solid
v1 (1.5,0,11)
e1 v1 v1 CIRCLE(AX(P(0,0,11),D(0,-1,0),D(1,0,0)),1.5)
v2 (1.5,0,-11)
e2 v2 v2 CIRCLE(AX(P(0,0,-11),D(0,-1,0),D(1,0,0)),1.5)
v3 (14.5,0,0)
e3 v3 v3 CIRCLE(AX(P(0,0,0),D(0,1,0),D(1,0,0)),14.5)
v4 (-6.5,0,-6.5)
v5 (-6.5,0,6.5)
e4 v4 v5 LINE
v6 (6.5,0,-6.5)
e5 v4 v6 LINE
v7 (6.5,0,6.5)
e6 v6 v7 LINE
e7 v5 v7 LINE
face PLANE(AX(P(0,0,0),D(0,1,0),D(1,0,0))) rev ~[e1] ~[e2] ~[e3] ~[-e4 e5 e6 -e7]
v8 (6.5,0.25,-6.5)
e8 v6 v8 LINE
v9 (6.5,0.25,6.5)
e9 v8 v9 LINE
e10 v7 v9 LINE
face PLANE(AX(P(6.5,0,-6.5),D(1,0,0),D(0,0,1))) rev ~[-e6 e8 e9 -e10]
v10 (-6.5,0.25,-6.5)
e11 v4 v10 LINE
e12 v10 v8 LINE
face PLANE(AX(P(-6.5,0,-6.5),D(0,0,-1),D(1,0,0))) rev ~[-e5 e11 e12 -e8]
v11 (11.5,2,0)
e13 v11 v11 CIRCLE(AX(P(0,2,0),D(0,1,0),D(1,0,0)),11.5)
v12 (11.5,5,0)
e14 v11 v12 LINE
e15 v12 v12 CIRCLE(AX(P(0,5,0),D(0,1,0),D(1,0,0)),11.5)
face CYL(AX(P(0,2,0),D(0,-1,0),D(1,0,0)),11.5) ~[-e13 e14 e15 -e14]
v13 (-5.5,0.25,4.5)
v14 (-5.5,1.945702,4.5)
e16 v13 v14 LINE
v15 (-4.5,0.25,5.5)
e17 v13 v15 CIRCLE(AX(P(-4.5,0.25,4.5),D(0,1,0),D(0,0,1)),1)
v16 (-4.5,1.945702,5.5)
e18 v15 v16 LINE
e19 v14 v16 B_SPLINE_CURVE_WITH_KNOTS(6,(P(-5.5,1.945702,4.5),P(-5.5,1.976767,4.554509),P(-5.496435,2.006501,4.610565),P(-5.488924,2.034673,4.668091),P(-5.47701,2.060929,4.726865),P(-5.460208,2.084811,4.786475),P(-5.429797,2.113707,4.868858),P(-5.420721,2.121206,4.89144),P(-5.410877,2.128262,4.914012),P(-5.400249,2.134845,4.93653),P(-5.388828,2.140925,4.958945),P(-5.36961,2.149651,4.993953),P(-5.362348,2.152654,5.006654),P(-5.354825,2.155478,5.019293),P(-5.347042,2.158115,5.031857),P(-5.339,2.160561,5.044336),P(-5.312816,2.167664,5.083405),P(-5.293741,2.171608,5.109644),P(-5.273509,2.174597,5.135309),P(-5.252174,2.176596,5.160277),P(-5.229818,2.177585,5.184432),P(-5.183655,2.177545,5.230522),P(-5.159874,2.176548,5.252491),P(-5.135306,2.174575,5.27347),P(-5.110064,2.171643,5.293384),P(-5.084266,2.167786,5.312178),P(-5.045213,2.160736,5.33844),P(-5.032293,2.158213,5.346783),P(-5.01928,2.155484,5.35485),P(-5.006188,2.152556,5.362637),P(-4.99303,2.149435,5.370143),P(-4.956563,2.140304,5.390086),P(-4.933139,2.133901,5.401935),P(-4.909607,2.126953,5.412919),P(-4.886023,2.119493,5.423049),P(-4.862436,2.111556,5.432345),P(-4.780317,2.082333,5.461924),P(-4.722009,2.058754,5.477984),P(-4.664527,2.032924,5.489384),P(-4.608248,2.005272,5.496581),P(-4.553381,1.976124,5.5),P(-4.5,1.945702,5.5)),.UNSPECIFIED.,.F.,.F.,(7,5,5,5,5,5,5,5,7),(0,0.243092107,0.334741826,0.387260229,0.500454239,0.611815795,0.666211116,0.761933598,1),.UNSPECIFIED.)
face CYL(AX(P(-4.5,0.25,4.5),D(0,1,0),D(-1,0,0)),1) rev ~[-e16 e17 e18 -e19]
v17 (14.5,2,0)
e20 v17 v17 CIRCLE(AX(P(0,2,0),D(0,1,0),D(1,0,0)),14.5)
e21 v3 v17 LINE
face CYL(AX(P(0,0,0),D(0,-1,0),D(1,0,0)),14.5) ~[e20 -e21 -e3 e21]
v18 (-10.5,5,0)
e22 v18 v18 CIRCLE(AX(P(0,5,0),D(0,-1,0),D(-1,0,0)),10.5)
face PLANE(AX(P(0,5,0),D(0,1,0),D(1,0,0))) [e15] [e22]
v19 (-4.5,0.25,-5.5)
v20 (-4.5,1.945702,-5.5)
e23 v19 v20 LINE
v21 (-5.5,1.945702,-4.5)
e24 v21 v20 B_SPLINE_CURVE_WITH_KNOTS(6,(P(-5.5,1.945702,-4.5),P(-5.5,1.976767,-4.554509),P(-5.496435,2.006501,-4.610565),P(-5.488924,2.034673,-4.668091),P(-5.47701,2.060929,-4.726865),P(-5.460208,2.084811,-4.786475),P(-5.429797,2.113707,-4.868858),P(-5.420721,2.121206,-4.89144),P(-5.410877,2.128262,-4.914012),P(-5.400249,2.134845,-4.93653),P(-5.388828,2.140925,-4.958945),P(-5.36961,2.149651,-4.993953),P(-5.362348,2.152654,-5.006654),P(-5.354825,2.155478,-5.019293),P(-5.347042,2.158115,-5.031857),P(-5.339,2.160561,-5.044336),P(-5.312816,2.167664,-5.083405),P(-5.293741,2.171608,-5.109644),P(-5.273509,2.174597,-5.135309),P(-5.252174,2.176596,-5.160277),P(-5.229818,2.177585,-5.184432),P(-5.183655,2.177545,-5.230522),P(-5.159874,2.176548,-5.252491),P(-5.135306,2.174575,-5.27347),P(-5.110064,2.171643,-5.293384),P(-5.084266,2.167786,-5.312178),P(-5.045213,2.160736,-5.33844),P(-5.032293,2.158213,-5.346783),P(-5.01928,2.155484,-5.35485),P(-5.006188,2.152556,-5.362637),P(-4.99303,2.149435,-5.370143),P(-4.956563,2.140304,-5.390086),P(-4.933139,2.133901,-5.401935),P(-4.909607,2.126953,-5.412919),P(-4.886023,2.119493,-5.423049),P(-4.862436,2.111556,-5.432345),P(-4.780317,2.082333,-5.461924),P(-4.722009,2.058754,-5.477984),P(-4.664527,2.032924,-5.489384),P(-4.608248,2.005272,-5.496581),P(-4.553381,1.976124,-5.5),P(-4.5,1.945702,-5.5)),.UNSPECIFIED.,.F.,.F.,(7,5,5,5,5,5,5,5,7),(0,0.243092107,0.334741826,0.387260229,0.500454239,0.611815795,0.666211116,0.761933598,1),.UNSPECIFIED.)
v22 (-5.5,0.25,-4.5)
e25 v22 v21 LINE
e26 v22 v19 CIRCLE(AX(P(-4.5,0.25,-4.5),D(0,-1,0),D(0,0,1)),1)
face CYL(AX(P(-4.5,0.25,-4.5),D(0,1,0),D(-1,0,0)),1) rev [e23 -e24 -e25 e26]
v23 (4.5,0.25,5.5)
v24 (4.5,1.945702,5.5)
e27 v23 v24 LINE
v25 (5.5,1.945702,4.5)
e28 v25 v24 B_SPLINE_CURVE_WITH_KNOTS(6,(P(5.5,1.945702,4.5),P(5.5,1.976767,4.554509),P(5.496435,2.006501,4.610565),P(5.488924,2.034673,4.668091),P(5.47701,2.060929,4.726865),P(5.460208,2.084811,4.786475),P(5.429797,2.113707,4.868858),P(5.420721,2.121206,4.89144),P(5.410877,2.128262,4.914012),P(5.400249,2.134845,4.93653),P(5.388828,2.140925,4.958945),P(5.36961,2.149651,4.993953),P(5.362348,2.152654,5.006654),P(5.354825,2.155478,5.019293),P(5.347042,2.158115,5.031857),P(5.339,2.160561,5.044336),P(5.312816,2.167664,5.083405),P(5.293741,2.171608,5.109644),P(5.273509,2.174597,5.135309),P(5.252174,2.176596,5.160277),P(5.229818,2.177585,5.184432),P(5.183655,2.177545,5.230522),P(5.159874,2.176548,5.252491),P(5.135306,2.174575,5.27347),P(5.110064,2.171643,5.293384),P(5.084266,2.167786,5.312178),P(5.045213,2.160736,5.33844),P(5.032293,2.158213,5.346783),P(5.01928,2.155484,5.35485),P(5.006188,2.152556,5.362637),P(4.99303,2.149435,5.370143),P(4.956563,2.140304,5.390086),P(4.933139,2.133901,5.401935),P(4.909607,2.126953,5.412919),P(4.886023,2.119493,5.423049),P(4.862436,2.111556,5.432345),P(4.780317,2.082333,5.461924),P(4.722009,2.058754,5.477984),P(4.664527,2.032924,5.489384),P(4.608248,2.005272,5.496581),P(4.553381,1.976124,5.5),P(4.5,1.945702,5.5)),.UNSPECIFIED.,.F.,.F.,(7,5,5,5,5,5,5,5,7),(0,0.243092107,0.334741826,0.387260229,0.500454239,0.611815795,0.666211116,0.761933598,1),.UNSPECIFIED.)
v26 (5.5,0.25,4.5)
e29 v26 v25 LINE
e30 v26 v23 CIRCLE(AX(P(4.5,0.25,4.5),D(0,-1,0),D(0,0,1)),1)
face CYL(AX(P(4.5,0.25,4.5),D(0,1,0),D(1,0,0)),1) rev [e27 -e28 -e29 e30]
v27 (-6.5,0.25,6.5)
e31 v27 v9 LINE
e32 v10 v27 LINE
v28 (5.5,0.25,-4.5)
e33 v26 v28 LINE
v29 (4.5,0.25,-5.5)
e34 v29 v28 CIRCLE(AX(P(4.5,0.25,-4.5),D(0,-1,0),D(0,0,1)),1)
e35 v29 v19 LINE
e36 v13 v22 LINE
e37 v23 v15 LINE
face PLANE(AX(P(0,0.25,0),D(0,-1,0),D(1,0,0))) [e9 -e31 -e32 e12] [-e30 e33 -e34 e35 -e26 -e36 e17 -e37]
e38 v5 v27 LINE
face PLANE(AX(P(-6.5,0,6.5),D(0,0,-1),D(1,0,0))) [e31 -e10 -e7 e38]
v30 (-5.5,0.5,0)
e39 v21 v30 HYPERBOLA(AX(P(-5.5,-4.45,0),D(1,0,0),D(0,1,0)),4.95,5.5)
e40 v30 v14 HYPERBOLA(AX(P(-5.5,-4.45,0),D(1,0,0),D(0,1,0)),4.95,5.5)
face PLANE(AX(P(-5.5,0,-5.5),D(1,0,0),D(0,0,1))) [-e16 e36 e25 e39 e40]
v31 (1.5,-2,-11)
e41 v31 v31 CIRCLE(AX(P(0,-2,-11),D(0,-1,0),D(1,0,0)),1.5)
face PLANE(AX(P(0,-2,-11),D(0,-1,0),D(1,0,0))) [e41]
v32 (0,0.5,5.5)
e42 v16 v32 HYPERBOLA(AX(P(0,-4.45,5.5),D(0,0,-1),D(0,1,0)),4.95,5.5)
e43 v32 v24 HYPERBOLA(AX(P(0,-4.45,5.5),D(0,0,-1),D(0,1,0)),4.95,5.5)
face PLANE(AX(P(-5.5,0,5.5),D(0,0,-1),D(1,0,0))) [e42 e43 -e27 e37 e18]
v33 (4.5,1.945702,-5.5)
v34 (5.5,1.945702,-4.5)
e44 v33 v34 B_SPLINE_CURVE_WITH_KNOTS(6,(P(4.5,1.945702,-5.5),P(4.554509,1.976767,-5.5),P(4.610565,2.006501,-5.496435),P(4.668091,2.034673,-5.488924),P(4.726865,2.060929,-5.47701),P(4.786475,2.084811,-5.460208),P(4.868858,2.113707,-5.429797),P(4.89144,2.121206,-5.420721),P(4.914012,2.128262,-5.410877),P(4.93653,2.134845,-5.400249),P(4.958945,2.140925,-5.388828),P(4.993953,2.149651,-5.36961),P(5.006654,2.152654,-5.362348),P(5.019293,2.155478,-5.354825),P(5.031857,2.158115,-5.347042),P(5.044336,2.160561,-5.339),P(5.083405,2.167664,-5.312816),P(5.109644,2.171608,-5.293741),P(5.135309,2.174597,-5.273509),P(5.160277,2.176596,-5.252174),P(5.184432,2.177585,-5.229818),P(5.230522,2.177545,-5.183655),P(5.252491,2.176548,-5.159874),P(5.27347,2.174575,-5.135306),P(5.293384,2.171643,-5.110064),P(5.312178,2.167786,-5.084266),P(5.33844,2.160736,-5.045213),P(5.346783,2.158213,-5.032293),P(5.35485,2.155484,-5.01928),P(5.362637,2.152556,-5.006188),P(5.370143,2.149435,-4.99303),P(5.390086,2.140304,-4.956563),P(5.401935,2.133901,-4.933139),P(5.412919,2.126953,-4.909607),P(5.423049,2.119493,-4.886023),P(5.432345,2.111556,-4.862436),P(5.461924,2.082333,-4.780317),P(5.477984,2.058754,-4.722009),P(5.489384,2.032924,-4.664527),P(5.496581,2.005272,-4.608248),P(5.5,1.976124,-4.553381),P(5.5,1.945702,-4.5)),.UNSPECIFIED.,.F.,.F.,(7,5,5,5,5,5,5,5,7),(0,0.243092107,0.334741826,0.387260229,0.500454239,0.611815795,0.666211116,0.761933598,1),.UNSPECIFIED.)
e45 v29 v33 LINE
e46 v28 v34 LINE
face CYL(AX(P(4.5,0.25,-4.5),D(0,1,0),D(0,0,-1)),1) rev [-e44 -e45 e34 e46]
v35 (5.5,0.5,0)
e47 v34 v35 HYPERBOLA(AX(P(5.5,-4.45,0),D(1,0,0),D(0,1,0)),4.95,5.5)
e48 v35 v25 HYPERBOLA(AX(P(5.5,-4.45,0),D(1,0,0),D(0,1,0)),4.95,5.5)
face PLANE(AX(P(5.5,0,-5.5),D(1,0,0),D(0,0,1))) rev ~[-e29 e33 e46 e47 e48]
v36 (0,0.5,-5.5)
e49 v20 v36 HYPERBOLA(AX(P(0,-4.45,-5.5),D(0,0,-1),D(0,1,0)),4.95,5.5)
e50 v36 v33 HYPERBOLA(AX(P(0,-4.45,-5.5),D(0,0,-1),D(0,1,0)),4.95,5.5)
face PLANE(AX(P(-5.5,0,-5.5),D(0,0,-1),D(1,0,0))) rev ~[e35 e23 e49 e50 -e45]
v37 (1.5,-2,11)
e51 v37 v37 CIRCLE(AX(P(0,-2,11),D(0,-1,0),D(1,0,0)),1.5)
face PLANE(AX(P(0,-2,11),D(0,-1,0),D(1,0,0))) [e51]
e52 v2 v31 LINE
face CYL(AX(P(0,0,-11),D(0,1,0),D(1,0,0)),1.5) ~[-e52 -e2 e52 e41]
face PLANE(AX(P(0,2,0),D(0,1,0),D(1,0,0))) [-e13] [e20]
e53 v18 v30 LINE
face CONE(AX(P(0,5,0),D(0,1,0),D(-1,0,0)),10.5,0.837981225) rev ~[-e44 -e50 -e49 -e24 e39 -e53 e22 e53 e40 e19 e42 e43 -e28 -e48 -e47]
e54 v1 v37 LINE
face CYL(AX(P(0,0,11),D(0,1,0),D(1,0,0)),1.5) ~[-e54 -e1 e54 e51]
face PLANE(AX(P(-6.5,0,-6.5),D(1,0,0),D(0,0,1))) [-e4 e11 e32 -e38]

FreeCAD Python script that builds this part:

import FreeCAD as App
import Part
import Sketcher

V = App.Vector
Q = App.Units.Quantity


def edges_at(feature, points):
    """Names of the edges that pass closest to the given points."""
    edges = feature.Shape.Edges
    near = lambda p: min(range(len(edges)), key=lambda i: edges[i].distToShape(Part.Vertex(*p))[0])
    return sorted({f"Edge{near(p) + 1}" for p in points})

doc = App.newDocument("Part")
body = doc.addObject("PartDesign::Body", "Body")

sketch1 = body.newObject("Sketcher::SketchObject", "Sketch")
sketch1.AttachmentSupport = (doc.getObject("XZ_Plane"), [""])
sketch1.MapMode = "FlatFace"
sketch1.addGeometry(Part.Circle(V(0, 0, 0), V(0, 0, 1), 14), False)
sketch1.addConstraint(Sketcher.Constraint("Coincident", 0, 3, -1, 1))
sketch1.addConstraint(Sketcher.Constraint("Diameter", 0, Q("29 mm")))
pad1 = body.newObject("PartDesign::Pad", "Pad")
pad1.Profile = sketch1
pad1.Length = 2
pad1.Reversed = True

sketch2 = body.newObject("Sketcher::SketchObject", "Sketch001")
sketch2.AttachmentSupport = (doc.getObject("XZ_Plane"), [""])
sketch2.MapMode = "FlatFace"
sketch2.addGeometry(Part.Circle(V(0, 11, 0), V(0, 0, 1), 1.5), False)
sketch2.addGeometry(Part.Circle(V(0, -11, 0), V(0, 0, 1), 1.5), False)
sketch2.addConstraint(Sketcher.Constraint("Equal", 0, 1))
sketch2.addConstraint(Sketcher.Constraint("Symmetric", 0, 3, 1, 3, -1, 1))
sketch2.addConstraint(Sketcher.Constraint("PointOnObject", 0, 3, -2))
sketch2.addConstraint(Sketcher.Constraint("Diameter", 0, Q("3 mm")))
sketch2.addConstraint(Sketcher.Constraint("DistanceY", -1, 1, 0, 3, Q("11 mm")))
pad2 = body.newObject("PartDesign::Pad", "Pad001")
pad2.Profile = sketch2
pad2.Length = 2

sketch3 = body.newObject("Sketcher::SketchObject", "Sketch002")
sketch3.AttachmentSupport = (doc.getObject("XZ_Plane"), [""])
sketch3.MapMode = "FlatFace"
sketch3.AttachmentOffset = App.Placement(V(0, 0, -2), App.Rotation())
sketch3.addGeometry(Part.Circle(V(0, 0, 0), V(0, 0, 1), 12), False)
sketch3.addConstraint(Sketcher.Constraint("Coincident", 0, 3, -1, 1))
sketch3.addConstraint(Sketcher.Constraint("Diameter", 0, Q("23 mm")))
pad3 = body.newObject("PartDesign::Pad", "Pad002")
pad3.Profile = sketch3
pad3.Length = 3
pad3.Reversed = True

sketch4 = body.newObject("Sketcher::SketchObject", "Sketch003")
sketch4.AttachmentSupport = (doc.getObject("XZ_Plane"), [""])
sketch4.MapMode = "FlatFace"
sketch4.addGeometry(Part.LineSegment(V(-6, 6, 0), V(-6, -6, 0)), False)
sketch4.addGeometry(Part.LineSegment(V(-6, -6, 0), V(6, -6, 0)), False)
sketch4.addGeometry(Part.LineSegment(V(6, -6, 0), V(6, 6, 0)), False)
sketch4.addGeometry(Part.LineSegment(V(6, 6, 0), V(-6, 6, 0)), False)
sketch4.addConstraint(Sketcher.Constraint("Coincident", 0, 2, 1, 1))
sketch4.addConstraint(Sketcher.Constraint("Coincident", 1, 2, 2, 1))
sketch4.addConstraint(Sketcher.Constraint("Coincident", 2, 2, 3, 1))
sketch4.addConstraint(Sketcher.Constraint("Coincident", 3, 2, 0, 1))
sketch4.addConstraint(Sketcher.Constraint("Vertical", 0))
sketch4.addConstraint(Sketcher.Constraint("Horizontal", 1))
sketch4.addConstraint(Sketcher.Constraint("Vertical", 2))
sketch4.addConstraint(Sketcher.Constraint("Horizontal", 3))
sketch4.addConstraint(Sketcher.Constraint("Symmetric", 0, 2, 2, 2, -1, 1))
sketch4.addConstraint(Sketcher.Constraint("Equal", 3, 0))
sketch4.addConstraint(Sketcher.Constraint("DistanceX", 1, 1, 1, 2, Q("11 mm")))
pocket1 = body.newObject("PartDesign::Pocket", "Pocket")
pocket1.Profile = sketch4
pocket1.Length = 12

sketch5 = body.newObject("Sketcher::SketchObject", "Sketch004")
sketch5.AttachmentSupport = (doc.getObject("XY_Plane"), [""])
sketch5.MapMode = "FlatFace"
sketch5.addGeometry(Part.LineSegment(V(-5.5, 5, 0), V(-10.5, 5, 0)), False)
sketch5.addGeometry(Part.LineSegment(V(-10.5, 5, 0), V(-5.5, 0.5, 0)), False)
sketch5.addGeometry(Part.LineSegment(V(-5.5, 0.5, 0), V(-5.5, 5, 0)), False)
sketch5.addConstraint(Sketcher.Constraint("Coincident", 0, 2, 1, 1))
sketch5.addConstraint(Sketcher.Constraint("Coincident", 1, 2, 2, 1))
sketch5.addConstraint(Sketcher.Constraint("Coincident", 2, 2, 0, 1))
sketch5.addConstraint(Sketcher.Constraint("Horizontal", 0))
sketch5.addConstraint(Sketcher.Constraint("Vertical", 2))
sketch5.addConstraint(Sketcher.Constraint("DistanceX", 0, 2, 0, 1, Q("5 mm")))
sketch5.addConstraint(Sketcher.Constraint("DistanceY", 2, 1, 2, 2, Q("4.5 mm")))
sketch5.addConstraint(Sketcher.Constraint("DistanceY", -1, 1, 0, 2, Q("5 mm")))
sketch5.addConstraint(Sketcher.Constraint("DistanceX", 0, 2, -1, 1, Q("10.5 mm")))
groove = body.newObject("PartDesign::Groove", "Groove")
groove.Profile = sketch5
groove.ReferenceAxis = (sketch5, ["V_Axis"])
groove.Angle = 360

sketch6 = body.newObject("Sketcher::SketchObject", "Sketch005")
sketch6.AttachmentSupport = (doc.getObject("XZ_Plane"), [""])
sketch6.MapMode = "FlatFace"
sketch6.addGeometry(Part.LineSegment(V(-6, 6, 0), V(-6, -6, 0)), False)
sketch6.addGeometry(Part.LineSegment(V(-6, -6, 0), V(6, -6, 0)), False)
sketch6.addGeometry(Part.LineSegment(V(6, -6, 0), V(6, 6, 0)), False)
sketch6.addGeometry(Part.LineSegment(V(6, 6, 0), V(-6, 6, 0)), False)
sketch6.addConstraint(Sketcher.Constraint("Coincident", 0, 2, 1, 1))
sketch6.addConstraint(Sketcher.Constraint("Coincident", 1, 2, 2, 1))
sketch6.addConstraint(Sketcher.Constraint("Coincident", 2, 2, 3, 1))
sketch6.addConstraint(Sketcher.Constraint("Coincident", 3, 2, 0, 1))
sketch6.addConstraint(Sketcher.Constraint("Vertical", 0))
sketch6.addConstraint(Sketcher.Constraint("Horizontal", 1))
sketch6.addConstraint(Sketcher.Constraint("Vertical", 2))
sketch6.addConstraint(Sketcher.Constraint("Horizontal", 3))
sketch6.addConstraint(Sketcher.Constraint("Symmetric", 0, 2, 2, 2, -1, 1))
sketch6.addConstraint(Sketcher.Constraint("Equal", 3, 0))
sketch6.addConstraint(Sketcher.Constraint("DistanceX", 1, 1, 1, 2, Q("13 mm")))
pocket2 = body.newObject("PartDesign::Pocket", "Pocket001")
pocket2.Profile = sketch6
pocket2.Length = 0.25
doc.recompute()

fillet = body.newObject("PartDesign::Fillet", "Fillet")
fillet.Base = (pocket2, edges_at(pocket2, [
    (-5.5, 1.4, 5.5),
    (5.5, 1.4, 5.5),
    (5.5, 1.4, -5.5),
    (-5.5, 1.4, -5.5),
]))
fillet.Radius = 1

doc.recompute()
